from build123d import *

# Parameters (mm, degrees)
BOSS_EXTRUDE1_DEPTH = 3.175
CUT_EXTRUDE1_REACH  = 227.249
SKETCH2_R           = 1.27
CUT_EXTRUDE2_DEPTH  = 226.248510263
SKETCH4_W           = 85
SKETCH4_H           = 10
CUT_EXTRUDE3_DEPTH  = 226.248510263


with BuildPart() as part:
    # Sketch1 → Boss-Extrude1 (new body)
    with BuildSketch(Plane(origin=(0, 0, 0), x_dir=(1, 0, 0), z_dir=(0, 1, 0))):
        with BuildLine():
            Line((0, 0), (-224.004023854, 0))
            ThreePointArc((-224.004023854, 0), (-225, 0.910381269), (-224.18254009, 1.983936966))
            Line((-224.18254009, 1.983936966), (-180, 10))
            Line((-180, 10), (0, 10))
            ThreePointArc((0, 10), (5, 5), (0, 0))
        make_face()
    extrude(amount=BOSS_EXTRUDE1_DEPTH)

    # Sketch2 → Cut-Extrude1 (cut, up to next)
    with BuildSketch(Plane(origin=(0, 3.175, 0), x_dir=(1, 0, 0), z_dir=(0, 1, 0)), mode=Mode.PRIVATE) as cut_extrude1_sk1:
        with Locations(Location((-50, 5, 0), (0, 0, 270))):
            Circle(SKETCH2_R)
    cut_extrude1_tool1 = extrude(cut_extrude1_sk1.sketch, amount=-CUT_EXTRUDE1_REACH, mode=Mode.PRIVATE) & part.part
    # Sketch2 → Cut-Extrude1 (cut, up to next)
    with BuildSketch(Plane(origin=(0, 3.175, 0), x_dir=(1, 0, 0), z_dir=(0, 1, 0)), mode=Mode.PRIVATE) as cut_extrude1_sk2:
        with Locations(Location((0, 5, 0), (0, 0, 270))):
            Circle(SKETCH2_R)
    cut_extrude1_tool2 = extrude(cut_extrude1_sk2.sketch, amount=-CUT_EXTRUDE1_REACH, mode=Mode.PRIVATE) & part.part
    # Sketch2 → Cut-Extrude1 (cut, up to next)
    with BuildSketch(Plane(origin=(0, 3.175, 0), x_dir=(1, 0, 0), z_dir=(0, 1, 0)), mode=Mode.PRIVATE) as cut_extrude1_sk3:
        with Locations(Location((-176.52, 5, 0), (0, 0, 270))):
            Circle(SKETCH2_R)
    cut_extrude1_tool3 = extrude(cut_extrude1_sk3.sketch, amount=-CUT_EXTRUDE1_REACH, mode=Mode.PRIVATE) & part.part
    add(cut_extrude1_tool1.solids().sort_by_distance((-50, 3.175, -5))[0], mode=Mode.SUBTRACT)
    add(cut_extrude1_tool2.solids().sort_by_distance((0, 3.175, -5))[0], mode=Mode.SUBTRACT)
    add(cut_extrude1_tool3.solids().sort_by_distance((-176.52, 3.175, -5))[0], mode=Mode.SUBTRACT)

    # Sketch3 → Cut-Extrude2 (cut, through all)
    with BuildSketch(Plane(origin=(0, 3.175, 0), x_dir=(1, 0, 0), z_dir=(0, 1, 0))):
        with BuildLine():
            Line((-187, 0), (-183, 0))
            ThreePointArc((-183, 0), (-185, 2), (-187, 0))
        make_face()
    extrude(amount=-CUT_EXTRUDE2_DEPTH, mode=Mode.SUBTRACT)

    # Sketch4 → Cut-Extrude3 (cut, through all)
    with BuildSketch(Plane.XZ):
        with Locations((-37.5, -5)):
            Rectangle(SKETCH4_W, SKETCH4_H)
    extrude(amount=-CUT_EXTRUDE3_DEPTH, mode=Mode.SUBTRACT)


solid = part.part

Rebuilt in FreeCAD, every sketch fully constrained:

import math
import FreeCAD as App
import Part
import Sketcher
from FreeCAD import Vector
Q = App.Units.Quantity

doc = App.newDocument("Part")
body = doc.addObject("PartDesign::Body", "Body")

sketch1 = body.newObject("Sketcher::SketchObject", "Sketch")
sketch1.AttachmentSupport = (doc.getObject("XZ_Plane"), [""])
sketch1.MapMode = "FlatFace"
sketch1.addGeometry(Part.LineSegment(Vector(-224, 0, 0), Vector(0, 0, 0)), False)
sketch1.addGeometry(Part.ArcOfCircle(Part.Circle(Vector(0, -5, 0), Vector(0, 0, 1), 5), math.radians(-90), math.radians(90)), False)
sketch1.addGeometry(Part.LineSegment(Vector(0, -10, 0), Vector(-180, -10, 0)), False)
sketch1.addGeometry(Part.LineSegment(Vector(-180, -10, 0), Vector(-224.2, -2, 0)), False)
sketch1.addGeometry(Part.ArcOfCircle(Part.Circle(Vector(-224, -1, 0), Vector(0, 0, 1), 1), math.radians(90), math.radians(260)), False)
sketch1.addConstraint(Sketcher.Constraint("Tangent", 0, 2, 1, 2))
sketch1.addConstraint(Sketcher.Constraint("Tangent", 1, 1, 2, 1))
sketch1.addConstraint(Sketcher.Constraint("Coincident", 2, 2, 3, 1))
sketch1.addConstraint(Sketcher.Constraint("Tangent", 3, 2, 4, 2))
sketch1.addConstraint(Sketcher.Constraint("Tangent", 4, 1, 0, 1))
sketch1.addConstraint(Sketcher.Constraint("Horizontal", 0))
sketch1.addConstraint(Sketcher.Constraint("Horizontal", 2))
sketch1.addConstraint(Sketcher.Constraint("Coincident", 0, 2, -1, 1))
sketch1.addConstraint(Sketcher.Constraint("Radius", 1, Q("5 mm")))
sketch1.addConstraint(Sketcher.Constraint("Radius", 4, Q("1 mm")))
sketch1.addConstraint(Sketcher.Constraint("DistanceX", 2, 2, 2, 1, Q("180 mm")))
sketch1.addConstraint(Sketcher.Constraint("Distance", 3, Q("44.903832 mm")))
pad1 = body.newObject("PartDesign::Pad", "Pad")
pad1.Profile = sketch1
pad1.Length = 3.175
pad1.Reversed = True

sketch2 = body.newObject("Sketcher::SketchObject", "Sketch001")
sketch2.AttachmentSupport = (doc.getObject("XZ_Plane"), [""])
sketch2.MapMode = "FlatFace"
sketch2.AttachmentOffset = App.Placement(Vector(0, 0, -3.175), App.Rotation())
sketch2.addGeometry(Part.Circle(Vector(-50, -5, 0), Vector(0, 0, 1), 1.3), False)
sketch2.addConstraint(Sketcher.Constraint("Diameter", 0, Q("2.54 mm")))
sketch2.addConstraint(Sketcher.Constraint("DistanceX", 0, 3, -1, 1, Q("50 mm")))
sketch2.addConstraint(Sketcher.Constraint("DistanceY", 0, 3, -1, 1, Q("5 mm")))
pocket1 = body.newObject("PartDesign::Pocket", "Pocket")
pocket1.Profile = sketch2
pocket1.Type = "UpToFirst"
pocket1.Reversed = True

sketch3 = body.newObject("Sketcher::SketchObject", "Sketch002")
sketch3.AttachmentSupport = (doc.getObject("XZ_Plane"), [""])
sketch3.MapMode = "FlatFace"
sketch3.AttachmentOffset = App.Placement(Vector(0, 0, -3.175), App.Rotation())
sketch3.addGeometry(Part.Circle(Vector(0, -5, 0), Vector(0, 0, 1), 1.3), False)
sketch3.addConstraint(Sketcher.Constraint("PointOnObject", 0, 3, -2))
sketch3.addConstraint(Sketcher.Constraint("Diameter", 0, Q("2.54 mm")))
sketch3.addConstraint(Sketcher.Constraint("DistanceY", 0, 3, -1, 1, Q("5 mm")))
pocket2 = body.newObject("PartDesign::Pocket", "Pocket001")
pocket2.Profile = sketch3
pocket2.Type = "UpToFirst"
pocket2.Reversed = True

sketch4 = body.newObject("Sketcher::SketchObject", "Sketch003")
sketch4.AttachmentSupport = (doc.getObject("XZ_Plane"), [""])
sketch4.MapMode = "FlatFace"
sketch4.AttachmentOffset = App.Placement(Vector(0, 0, -3.175), App.Rotation())
sketch4.addGeometry(Part.Circle(Vector(-176.5, -5, 0), Vector(0, 0, 1), 1.3), False)
sketch4.addConstraint(Sketcher.Constraint("Diameter", 0, Q("2.54 mm")))
sketch4.addConstraint(Sketcher.Constraint("DistanceY", 0, 3, -1, 1, Q("5 mm")))
sketch4.addConstraint(Sketcher.Constraint("DistanceX", 0, 3, -1, 1, Q("176.52 mm")))
pocket3 = body.newObject("PartDesign::Pocket", "Pocket002")
pocket3.Profile = sketch4
pocket3.Type = "UpToFirst"
pocket3.Reversed = True

sketch5 = body.newObject("Sketcher::SketchObject", "Sketch004")
sketch5.AttachmentSupport = (doc.getObject("XZ_Plane"), [""])
sketch5.MapMode = "FlatFace"
sketch5.AttachmentOffset = App.Placement(Vector(0, 0, -3.175), App.Rotation())
sketch5.addGeometry(Part.LineSegment(Vector(-187, 0, 0), Vector(-183, 0, 0)), False)
sketch5.addGeometry(Part.ArcOfCircle(Part.Circle(Vector(-185, 0, 0), Vector(0, 0, 1), 2), math.radians(180), math.radians(360)), False)
sketch5.addConstraint(Sketcher.Constraint("Coincident", 0, 1, 1, 1))
sketch5.addConstraint(Sketcher.Constraint("Coincident", 1, 2, 0, 2))
sketch5.addConstraint(Sketcher.Constraint("Horizontal", 0))
sketch5.addConstraint(Sketcher.Constraint("PointOnObject", 1, 3, -1))
sketch5.addConstraint(Sketcher.Constraint("PointOnObject", 0, 1, -1))
sketch5.addConstraint(Sketcher.Constraint("Radius", 1, Q("2 mm")))
sketch5.addConstraint(Sketcher.Constraint("DistanceX", 1, 3, -1, 1, Q("185 mm")))
pocket4 = body.newObject("PartDesign::Pocket", "Pocket003")
pocket4.Profile = sketch5
pocket4.Type = "ThroughAll"
pocket4.Reversed = True

sketch6 = body.newObject("Sketcher::SketchObject", "Sketch005")
sketch6.AttachmentSupport = (doc.getObject("XZ_Plane"), [""])
sketch6.MapMode = "FlatFace"
sketch6.addGeometry(Part.LineSegment(Vector(-80, 0, 0), Vector(-80, -10, 0)), False)
sketch6.addGeometry(Part.LineSegment(Vector(-80, -10, 0), Vector(5, -10, 0)), False)
sketch6.addGeometry(Part.LineSegment(Vector(5, -10, 0), Vector(5, 0, 0)), False)
sketch6.addGeometry(Part.LineSegment(Vector(5, 0, 0), Vector(-80, 0, 0)), False)
sketch6.addConstraint(Sketcher.Constraint("Coincident", 0, 2, 1, 1))
sketch6.addConstraint(Sketcher.Constraint("Coincident", 1, 2, 2, 1))
sketch6.addConstraint(Sketcher.Constraint("Coincident", 2, 2, 3, 1))
sketch6.addConstraint(Sketcher.Constraint("Coincident", 3, 2, 0, 1))
sketch6.addConstraint(Sketcher.Constraint("Vertical", 0))
sketch6.addConstraint(Sketcher.Constraint("Horizontal", 1))
sketch6.addConstraint(Sketcher.Constraint("Vertical", 2))
sketch6.addConstraint(Sketcher.Constraint("Horizontal", 3))
sketch6.addConstraint(Sketcher.Constraint("PointOnObject", 2, 2, -1))
sketch6.addConstraint(Sketcher.Constraint("DistanceX", 1, 1, 1, 2, Q("85 mm")))
sketch6.addConstraint(Sketcher.Constraint("DistanceY", 0, 2, 0, 1, Q("10 mm")))
sketch6.addConstraint(Sketcher.Constraint("DistanceX", 0, 2, -1, 1, Q("80 mm")))
pocket5 = body.newObject("PartDesign::Pocket", "Pocket004")
pocket5.Profile = sketch6
pocket5.Type = "ThroughAll"

doc.recompute()
